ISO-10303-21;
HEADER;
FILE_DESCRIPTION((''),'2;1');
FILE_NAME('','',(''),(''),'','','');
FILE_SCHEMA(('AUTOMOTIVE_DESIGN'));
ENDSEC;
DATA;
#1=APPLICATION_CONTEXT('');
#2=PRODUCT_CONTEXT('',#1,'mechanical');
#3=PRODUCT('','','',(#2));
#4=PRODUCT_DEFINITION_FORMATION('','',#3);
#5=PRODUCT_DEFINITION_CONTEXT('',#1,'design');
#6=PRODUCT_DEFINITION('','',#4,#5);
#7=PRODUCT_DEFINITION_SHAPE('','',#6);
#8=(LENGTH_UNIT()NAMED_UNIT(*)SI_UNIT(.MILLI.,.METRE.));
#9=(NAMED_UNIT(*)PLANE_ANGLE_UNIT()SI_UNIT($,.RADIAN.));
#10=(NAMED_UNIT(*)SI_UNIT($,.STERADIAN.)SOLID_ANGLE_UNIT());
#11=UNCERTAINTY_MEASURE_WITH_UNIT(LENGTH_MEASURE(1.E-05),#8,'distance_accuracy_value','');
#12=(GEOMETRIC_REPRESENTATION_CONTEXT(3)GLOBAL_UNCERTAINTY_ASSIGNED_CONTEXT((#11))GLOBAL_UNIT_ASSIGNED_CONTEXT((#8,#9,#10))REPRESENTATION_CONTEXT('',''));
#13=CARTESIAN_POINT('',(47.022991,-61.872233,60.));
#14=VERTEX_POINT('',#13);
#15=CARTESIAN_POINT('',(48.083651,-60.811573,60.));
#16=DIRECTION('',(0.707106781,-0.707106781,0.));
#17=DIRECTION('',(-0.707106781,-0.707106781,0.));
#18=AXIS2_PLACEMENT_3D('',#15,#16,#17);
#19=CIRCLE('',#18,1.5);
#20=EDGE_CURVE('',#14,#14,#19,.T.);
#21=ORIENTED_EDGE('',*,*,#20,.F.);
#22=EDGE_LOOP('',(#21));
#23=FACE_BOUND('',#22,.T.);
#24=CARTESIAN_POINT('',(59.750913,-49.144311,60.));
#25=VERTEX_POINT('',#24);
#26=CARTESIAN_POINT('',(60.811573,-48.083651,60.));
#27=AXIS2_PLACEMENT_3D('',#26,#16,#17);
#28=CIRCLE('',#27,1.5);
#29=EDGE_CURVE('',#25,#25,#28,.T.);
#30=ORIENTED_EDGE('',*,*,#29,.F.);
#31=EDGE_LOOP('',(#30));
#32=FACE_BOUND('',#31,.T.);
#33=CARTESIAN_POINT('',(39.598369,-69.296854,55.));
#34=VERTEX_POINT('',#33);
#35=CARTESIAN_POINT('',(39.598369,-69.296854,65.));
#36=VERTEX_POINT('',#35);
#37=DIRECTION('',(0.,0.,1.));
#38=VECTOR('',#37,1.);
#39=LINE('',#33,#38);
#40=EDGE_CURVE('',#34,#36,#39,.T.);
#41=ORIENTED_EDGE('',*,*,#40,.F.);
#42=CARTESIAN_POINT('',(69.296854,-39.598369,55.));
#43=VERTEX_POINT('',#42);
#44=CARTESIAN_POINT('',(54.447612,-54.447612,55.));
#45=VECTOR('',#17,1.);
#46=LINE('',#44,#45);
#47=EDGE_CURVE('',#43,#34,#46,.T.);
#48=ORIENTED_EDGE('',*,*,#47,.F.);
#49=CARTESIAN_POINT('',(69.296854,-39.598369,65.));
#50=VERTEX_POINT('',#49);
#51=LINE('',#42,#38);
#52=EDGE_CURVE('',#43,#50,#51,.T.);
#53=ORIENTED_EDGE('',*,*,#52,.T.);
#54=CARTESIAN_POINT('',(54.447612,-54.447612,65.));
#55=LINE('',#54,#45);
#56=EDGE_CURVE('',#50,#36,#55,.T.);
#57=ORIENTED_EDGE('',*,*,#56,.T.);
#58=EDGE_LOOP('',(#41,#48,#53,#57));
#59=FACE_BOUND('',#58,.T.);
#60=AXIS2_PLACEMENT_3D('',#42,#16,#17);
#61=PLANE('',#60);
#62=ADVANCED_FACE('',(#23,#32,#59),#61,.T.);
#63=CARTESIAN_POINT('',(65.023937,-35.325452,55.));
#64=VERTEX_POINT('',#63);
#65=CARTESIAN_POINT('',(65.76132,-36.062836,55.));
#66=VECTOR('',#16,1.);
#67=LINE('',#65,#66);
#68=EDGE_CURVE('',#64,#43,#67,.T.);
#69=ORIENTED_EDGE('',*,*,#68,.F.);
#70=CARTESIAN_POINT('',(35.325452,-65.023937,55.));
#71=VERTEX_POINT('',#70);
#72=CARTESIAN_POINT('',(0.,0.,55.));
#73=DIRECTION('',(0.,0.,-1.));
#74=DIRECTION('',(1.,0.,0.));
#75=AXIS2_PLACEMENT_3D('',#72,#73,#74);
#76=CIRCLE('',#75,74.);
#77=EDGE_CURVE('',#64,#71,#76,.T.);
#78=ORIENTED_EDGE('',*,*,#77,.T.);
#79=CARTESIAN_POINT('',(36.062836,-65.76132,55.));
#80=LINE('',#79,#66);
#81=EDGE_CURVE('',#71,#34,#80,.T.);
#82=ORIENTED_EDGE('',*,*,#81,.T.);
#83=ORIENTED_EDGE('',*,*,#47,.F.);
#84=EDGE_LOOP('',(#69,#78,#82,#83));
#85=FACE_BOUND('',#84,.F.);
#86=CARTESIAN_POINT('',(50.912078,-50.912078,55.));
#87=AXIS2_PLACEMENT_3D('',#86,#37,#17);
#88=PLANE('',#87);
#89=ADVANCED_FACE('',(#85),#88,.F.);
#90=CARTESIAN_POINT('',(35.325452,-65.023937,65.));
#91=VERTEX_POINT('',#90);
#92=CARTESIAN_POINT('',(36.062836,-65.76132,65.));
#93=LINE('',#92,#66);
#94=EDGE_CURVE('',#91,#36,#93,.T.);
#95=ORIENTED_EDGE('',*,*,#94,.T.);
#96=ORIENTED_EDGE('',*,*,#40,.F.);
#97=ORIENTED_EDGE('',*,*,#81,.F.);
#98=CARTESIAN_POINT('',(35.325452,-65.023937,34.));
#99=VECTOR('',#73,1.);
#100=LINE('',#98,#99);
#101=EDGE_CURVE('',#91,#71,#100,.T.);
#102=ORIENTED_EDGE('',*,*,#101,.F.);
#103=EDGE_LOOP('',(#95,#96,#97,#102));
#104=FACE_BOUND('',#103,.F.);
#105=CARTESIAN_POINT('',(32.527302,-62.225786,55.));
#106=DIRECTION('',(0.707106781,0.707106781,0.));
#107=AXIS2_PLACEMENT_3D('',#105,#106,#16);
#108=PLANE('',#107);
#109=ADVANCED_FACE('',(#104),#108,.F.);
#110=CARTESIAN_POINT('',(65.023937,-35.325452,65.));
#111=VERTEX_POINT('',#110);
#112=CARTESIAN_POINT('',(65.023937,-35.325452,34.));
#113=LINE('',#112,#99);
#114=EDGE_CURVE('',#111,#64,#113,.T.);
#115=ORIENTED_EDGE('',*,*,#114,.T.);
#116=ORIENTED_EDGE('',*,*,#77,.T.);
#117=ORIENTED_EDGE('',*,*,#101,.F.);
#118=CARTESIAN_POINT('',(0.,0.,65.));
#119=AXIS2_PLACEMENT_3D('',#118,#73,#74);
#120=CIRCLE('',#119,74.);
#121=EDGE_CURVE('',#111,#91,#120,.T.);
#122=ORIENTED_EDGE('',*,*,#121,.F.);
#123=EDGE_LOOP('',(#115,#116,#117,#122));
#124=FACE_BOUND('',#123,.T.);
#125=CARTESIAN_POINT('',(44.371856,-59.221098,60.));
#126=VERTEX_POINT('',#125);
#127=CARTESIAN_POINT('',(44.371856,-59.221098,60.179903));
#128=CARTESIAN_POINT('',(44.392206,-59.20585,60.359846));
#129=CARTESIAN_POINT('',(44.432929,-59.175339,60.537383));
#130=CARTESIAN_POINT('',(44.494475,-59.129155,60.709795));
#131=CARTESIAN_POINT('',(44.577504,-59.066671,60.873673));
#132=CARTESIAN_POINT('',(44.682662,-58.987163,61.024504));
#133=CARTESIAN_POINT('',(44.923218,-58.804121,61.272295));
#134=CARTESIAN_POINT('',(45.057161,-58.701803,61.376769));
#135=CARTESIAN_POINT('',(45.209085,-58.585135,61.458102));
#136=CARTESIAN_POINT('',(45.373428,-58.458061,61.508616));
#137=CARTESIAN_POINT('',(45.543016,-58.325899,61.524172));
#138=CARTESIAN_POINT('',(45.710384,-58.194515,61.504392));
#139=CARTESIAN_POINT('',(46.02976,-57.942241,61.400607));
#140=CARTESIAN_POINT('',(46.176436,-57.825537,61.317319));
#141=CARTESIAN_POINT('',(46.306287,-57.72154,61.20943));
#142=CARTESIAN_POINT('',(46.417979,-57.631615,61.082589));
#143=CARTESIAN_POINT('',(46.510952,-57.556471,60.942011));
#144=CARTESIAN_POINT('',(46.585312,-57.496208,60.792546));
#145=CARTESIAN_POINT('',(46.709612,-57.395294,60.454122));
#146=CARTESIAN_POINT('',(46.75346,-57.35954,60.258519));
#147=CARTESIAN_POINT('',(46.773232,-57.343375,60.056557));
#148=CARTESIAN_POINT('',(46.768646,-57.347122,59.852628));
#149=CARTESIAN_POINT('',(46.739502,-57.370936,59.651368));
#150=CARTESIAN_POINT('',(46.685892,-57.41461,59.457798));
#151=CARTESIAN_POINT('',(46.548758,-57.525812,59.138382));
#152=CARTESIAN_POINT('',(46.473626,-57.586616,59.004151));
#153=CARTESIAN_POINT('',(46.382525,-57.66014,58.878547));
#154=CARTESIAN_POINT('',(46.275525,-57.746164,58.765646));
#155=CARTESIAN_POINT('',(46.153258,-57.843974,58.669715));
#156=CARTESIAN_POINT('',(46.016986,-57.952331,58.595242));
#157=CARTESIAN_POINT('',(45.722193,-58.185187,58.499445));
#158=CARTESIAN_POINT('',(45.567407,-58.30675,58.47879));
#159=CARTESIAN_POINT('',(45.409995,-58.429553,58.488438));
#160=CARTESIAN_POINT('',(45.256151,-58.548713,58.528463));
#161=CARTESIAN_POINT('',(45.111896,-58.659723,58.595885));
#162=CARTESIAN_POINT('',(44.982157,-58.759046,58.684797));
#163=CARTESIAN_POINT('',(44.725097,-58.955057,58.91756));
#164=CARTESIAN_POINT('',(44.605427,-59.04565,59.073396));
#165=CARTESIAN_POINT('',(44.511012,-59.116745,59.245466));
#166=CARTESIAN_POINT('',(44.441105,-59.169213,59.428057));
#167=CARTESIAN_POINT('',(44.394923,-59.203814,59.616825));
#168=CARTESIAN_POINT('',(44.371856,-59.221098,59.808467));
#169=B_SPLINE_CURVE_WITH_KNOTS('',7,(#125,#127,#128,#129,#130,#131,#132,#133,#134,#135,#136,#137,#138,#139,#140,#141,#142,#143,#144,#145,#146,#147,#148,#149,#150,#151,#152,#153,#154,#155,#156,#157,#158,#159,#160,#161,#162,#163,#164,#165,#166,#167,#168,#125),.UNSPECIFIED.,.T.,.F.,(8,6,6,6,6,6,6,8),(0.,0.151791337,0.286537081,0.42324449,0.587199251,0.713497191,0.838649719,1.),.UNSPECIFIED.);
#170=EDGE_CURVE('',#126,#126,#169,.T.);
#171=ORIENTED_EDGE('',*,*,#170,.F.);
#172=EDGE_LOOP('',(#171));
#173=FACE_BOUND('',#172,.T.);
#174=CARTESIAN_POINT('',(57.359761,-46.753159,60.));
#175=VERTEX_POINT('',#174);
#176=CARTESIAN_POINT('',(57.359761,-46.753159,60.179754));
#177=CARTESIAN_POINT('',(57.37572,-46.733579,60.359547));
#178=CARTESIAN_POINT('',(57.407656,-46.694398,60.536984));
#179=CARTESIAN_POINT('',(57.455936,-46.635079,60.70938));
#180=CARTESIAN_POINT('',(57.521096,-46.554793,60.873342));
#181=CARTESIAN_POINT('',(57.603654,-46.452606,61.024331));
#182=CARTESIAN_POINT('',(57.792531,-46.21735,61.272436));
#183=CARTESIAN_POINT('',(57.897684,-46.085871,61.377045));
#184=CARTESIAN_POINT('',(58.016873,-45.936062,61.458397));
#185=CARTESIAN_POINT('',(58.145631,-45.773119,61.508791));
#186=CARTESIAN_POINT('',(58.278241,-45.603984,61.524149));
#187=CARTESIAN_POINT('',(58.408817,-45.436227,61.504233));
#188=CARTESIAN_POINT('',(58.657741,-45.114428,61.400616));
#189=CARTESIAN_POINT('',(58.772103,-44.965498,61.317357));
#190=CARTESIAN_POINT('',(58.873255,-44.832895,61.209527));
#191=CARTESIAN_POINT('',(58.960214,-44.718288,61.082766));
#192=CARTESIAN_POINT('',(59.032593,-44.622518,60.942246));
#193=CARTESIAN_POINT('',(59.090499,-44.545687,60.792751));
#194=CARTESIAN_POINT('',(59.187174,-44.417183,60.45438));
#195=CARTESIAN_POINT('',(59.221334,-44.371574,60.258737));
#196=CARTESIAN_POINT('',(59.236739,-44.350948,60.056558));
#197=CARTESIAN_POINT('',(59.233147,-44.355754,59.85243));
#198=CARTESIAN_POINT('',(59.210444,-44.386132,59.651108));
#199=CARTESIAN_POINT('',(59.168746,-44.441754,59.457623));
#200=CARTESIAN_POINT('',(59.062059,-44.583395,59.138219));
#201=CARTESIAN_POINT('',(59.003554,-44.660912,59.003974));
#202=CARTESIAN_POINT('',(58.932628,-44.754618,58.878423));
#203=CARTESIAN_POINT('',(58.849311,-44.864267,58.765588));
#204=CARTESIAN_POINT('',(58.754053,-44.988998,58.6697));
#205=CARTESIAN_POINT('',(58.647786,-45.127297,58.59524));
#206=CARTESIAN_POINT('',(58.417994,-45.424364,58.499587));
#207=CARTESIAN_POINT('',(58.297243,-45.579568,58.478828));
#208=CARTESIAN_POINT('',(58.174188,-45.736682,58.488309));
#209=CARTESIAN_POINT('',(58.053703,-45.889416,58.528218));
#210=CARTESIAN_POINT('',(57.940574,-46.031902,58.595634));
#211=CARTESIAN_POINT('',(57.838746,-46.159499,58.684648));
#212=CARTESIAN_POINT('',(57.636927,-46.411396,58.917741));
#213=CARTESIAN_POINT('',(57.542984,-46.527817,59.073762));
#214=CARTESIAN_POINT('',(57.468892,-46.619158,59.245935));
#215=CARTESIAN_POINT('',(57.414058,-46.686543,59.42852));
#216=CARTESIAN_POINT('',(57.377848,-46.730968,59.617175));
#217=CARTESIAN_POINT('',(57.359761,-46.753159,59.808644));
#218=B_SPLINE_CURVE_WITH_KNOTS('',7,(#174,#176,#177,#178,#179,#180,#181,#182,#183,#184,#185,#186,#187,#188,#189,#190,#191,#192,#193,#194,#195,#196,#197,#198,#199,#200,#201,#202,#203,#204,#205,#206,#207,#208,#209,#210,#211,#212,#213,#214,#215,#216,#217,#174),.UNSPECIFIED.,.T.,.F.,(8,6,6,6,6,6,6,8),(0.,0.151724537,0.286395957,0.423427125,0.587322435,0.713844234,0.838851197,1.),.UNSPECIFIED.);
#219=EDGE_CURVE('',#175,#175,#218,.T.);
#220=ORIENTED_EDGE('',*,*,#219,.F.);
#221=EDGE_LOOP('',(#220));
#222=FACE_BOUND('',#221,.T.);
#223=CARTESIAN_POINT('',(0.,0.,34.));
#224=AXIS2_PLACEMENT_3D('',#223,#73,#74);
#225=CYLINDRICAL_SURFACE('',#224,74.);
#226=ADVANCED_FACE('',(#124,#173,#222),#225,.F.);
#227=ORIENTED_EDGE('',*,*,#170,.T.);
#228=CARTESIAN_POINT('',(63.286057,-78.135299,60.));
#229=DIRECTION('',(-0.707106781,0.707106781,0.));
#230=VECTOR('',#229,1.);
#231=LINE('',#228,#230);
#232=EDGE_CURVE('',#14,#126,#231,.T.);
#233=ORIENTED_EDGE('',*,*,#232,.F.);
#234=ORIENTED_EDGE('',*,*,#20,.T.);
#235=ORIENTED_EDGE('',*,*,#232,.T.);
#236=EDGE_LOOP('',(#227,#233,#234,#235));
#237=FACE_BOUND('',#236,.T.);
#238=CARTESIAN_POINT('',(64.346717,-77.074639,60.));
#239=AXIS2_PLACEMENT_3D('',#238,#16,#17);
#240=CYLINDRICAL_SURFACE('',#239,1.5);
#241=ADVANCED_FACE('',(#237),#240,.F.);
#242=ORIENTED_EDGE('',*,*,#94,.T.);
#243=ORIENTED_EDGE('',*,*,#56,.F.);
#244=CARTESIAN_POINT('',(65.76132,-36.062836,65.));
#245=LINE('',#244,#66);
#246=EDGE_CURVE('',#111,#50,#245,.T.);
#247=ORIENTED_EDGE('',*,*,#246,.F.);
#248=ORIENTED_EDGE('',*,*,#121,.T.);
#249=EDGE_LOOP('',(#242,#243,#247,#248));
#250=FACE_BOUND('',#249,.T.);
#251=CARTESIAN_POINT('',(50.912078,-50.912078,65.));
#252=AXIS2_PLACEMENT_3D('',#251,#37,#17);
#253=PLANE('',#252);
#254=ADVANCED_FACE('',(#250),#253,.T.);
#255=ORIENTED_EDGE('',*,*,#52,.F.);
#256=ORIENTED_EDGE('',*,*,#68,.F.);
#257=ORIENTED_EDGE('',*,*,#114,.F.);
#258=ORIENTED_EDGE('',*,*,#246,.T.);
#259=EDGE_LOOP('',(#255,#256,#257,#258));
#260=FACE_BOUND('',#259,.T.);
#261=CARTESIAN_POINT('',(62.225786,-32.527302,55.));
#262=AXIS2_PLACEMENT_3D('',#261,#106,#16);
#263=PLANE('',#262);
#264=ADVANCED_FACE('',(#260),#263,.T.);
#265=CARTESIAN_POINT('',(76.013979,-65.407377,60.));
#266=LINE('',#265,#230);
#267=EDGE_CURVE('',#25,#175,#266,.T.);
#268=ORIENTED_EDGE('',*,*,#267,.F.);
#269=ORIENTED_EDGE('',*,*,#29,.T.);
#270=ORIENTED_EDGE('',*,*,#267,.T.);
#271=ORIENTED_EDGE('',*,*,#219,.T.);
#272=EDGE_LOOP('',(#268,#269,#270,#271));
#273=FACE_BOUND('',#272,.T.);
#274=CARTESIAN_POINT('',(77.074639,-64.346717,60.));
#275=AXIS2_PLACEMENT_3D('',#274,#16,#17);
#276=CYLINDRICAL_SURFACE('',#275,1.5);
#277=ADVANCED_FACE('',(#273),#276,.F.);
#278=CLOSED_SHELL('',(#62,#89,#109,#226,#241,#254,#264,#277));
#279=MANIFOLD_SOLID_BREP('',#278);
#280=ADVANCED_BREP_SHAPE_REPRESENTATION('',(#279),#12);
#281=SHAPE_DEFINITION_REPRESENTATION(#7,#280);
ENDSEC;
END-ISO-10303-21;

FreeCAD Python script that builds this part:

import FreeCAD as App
import Part
import Sketcher
from FreeCAD import Vector

doc = App.newDocument("Part")
body = doc.addObject("PartDesign::Body", "Body")

sketch1 = doc.addObject("Sketcher::SketchObject", "Sketch")
body.addObject(sketch1)
sketch1.AttachmentSupport = (doc.XZ_Plane, [""])
sketch1.MapMode = "FlatFace"
sketch1.AttachmentOffset = App.Placement(Vector(0, 0, -100), App.Rotation())
sketch1.addGeometry(Part.Circle(Vector(9, 59, 0), Vector(0, 0, 1), 1.5), False)
sketch1.addConstraint([
    Sketcher.Constraint("Diameter", 0, 3.0),
    Sketcher.Constraint("DistanceX", -1, 1, 0, 3, 9.0),
    Sketcher.Constraint("DistanceY", -1, 1, 0, 3, 59.0),
])
pad1 = doc.addObject("PartDesign::Pad", "Pad")
body.addObject(pad1)
pad1.Profile = sketch1
pad1.Length = 50
body2 = doc.addObject("PartDesign::Body", "Body001")
doc.recompute()

body.Placement = App.Placement(Vector(0, 0, 0), App.Rotation(Vector(0, 0, 1), 225))
boolean = doc.addObject("PartDesign::Boolean", "Boolean")
body2.addObject(boolean)
boolean.Type = "Fuse"
boolean.addObjects([body])
body3 = doc.addObject("PartDesign::Body", "Body002")

sketch2 = doc.addObject("Sketcher::SketchObject", "Sketch001")
body3.addObject(sketch2)
sketch2.AttachmentSupport = (doc.getObject("XZ_Plane002"), [""])
sketch2.MapMode = "FlatFace"
sketch2.AttachmentOffset = App.Placement(Vector(0, 0, -100), App.Rotation())
sketch2.addGeometry(Part.Circle(Vector(-9, 59, 0), Vector(0, 0, 1), 1.5), False)
sketch2.addConstraint([
    Sketcher.Constraint("Diameter", 0, 3.0),
    Sketcher.Constraint("DistanceX", 0, 3, -1, 1, 9.0),
    Sketcher.Constraint("DistanceY", -1, 1, 0, 3, 59.0),
])
pad2 = doc.addObject("PartDesign::Pad", "Pad001")
body3.addObject(pad2)
pad2.Profile = sketch2
pad2.Length = 50
body4 = doc.addObject("PartDesign::Body", "Body003")
body4.AllowCompound = True
doc.recompute()

body3.Placement = App.Placement(Vector(0, 0, 0), App.Rotation(Vector(0, 0, 1), 225))
boolean2 = doc.addObject("PartDesign::Boolean", "Boolean001")
body4.addObject(boolean2)
boolean2.Type = "Fuse"
boolean2.addObjects([body3])
doc.recompute()

boolean3 = doc.addObject("PartDesign::Boolean", "Boolean002")
body4.addObject(boolean3)
boolean3.Type = "Fuse"
boolean3.addObjects([body2])
body5 = doc.addObject("PartDesign::Body", "Body004")
body5.AllowCompound = True
doc.recompute()

body4.Placement = App.Placement(Vector(0, 0, 1), App.Rotation(Vector(0, 0, 1), 0))
boolean4 = doc.addObject("PartDesign::Boolean", "Boolean003")
body5.addObject(boolean4)
boolean4.Type = "Fuse"
boolean4.addObjects([body4])
body6 = doc.addObject("PartDesign::Body", "Body005")

sketch3 = doc.addObject("Sketcher::SketchObject", "Sketch002")
body6.addObject(sketch3)
sketch3.AttachmentSupport = (doc.getObject("XY_Plane005"), [""])
sketch3.MapMode = "FlatFace"
sketch3.AttachmentOffset = App.Placement(Vector(0, 0, 44), App.Rotation())
sketch3.addGeometry(Part.Circle(Vector(0, 0, 0), Vector(0, 0, 1), 74), False)
sketch3.addConstraint([
    Sketcher.Constraint("Coincident", 0, 3, -1, 1),
    Sketcher.Constraint("Diameter", 0, 148.0),
])
pad3 = doc.addObject("PartDesign::Pad", "Pad002")
body6.addObject(pad3)
pad3.Profile = sketch3
pad3.Length = 40
body7 = doc.addObject("PartDesign::Body", "Body006")

sketch4 = doc.addObject("Sketcher::SketchObject", "Sketch003")
body7.addObject(sketch4)
sketch4.AttachmentSupport = (doc.getObject("XY_Plane006"), [""])
sketch4.MapMode = "FlatFace"
sketch4.AttachmentOffset = App.Placement(Vector(0, 0, 22), App.Rotation())
sketch4.addGeometry([
    Part.LineSegment(Vector(-21, -13, 0), Vector(-21, -23, 0)),
    Part.LineSegment(Vector(-21, -23, 0), Vector(21, -23, 0)),
    Part.LineSegment(Vector(21, -23, 0), Vector(21, -13, 0)),
    Part.LineSegment(Vector(21, -13, 0), Vector(-21, -13, 0)),
], False)
sketch4.addConstraint([
    Sketcher.Constraint("Coincident", 0, 2, 1, 1),
    Sketcher.Constraint("Coincident", 1, 2, 2, 1),
    Sketcher.Constraint("Coincident", 2, 2, 3, 1),
    Sketcher.Constraint("Coincident", 3, 2, 0, 1),
    Sketcher.Constraint("Vertical", 0),
    Sketcher.Constraint("Horizontal", 1),
    Sketcher.Constraint("Vertical", 2),
    Sketcher.Constraint("Horizontal", 3),
    Sketcher.Constraint("DistanceX", 1, 1, 1, 2, 42.0),
    Sketcher.Constraint("DistanceY", 0, 2, 0, 1, 10.0),
    Sketcher.Constraint("DistanceX", 0, 2, -1, 1, 21.0),
    Sketcher.Constraint("DistanceY", 0, 2, -1, 1, 23.0),
])
pad4 = doc.addObject("PartDesign::Pad", "Pad003")
body7.addObject(pad4)
pad4.Profile = sketch4
pad4.Length = 10
body8 = doc.addObject("PartDesign::Body", "Body007")
doc.recompute()

body7.Placement = App.Placement(Vector(63.64, -63.64, 43), App.Rotation(Vector(0, 0, 1), 225))
boolean5 = doc.addObject("PartDesign::Boolean", "Boolean004")
body8.addObject(boolean5)
boolean5.Type = "Fuse"
boolean5.addObjects([body7])
doc.recompute()

boolean6 = doc.addObject("PartDesign::Boolean", "Boolean005")
body8.addObject(boolean6)
boolean6.Type = "Cut"
boolean6.addObjects([body6])
body9 = doc.addObject("PartDesign::Body", "Body008")
doc.recompute()

body8.Placement = App.Placement(Vector(0, 0, -10), App.Rotation(Vector(0, 0, 1), 0))
boolean7 = doc.addObject("PartDesign::Boolean", "Boolean006")
body9.addObject(boolean7)
boolean7.Type = "Fuse"
boolean7.addObjects([body8])
doc.recompute()

boolean8 = doc.addObject("PartDesign::Boolean", "Boolean007")
body9.addObject(boolean8)
boolean8.Type = "Cut"
boolean8.addObjects([body5])

doc.recompute()
